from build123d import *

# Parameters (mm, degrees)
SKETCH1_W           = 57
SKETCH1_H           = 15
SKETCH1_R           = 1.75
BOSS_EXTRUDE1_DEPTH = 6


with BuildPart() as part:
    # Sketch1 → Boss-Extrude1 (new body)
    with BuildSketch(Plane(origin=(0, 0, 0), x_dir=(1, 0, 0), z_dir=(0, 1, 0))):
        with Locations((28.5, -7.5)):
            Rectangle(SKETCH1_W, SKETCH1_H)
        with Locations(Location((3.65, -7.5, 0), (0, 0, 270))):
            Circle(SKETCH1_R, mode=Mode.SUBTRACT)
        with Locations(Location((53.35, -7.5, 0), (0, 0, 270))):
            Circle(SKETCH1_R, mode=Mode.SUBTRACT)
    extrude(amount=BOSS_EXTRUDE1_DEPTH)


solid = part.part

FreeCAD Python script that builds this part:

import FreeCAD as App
import Part
import Sketcher

V = App.Vector
Q = App.Units.Quantity


def add_polygon(sketch, points):
    """Adds a closed chain of lines whose ends are joined by coincident constraints."""
    first, n = sketch.GeometryCount, len(points)
    for a, b in zip(points, points[1:] + points[:1]):
        sketch.addGeometry(Part.LineSegment(App.Vector(*a, 0), App.Vector(*b, 0)), False)
    for i in range(n):
        sketch.addConstraint(Sketcher.Constraint("Coincident", first + i, 2, first + (i + 1) % n, 1))

doc = App.newDocument("Part")
body = doc.addObject("PartDesign::Body", "Body")

# Sketch on XZ plane
sketch1 = doc.addObject("Sketcher::SketchObject", "Sketch")
body.addObject(sketch1)
sketch1.AttachmentSupport = (doc.XZ_Plane, [""])
sketch1.MapMode = "FlatFace"
add_polygon(sketch1, [(0, 0), (0, 15), (57, 15), (57, 0)])  # lines 0-3
sketch1.addGeometry(Part.Circle(V(3.6, 7.5, 0), V(0, 0, 1), 1.8), False)  # 4
sketch1.addGeometry(Part.Circle(V(53.4, 7.5, 0), V(0, 0, 1), 1.8), False)  # 5
sketch1.addConstraint([
    Sketcher.Constraint("Vertical", 0),
    Sketcher.Constraint("Horizontal", 1),
    Sketcher.Constraint("Vertical", 2),
    Sketcher.Constraint("Horizontal", 3),
    Sketcher.Constraint("Coincident", 3, 2, -1, 1),
    Sketcher.Constraint("Equal", 4, 5),
    Sketcher.Constraint("Horizontal", 4, 3, 5, 3),
    Sketcher.Constraint("Diameter", 4, Q("3.5 mm")),
    Sketcher.Constraint("DistanceX", 1, 1, 1, 2, Q("57 mm")),
    Sketcher.Constraint("DistanceY", 0, 1, 0, 2, Q("15 mm")),
    Sketcher.Constraint("DistanceY", -1, 1, 4, 3, Q("7.5 mm")),
    Sketcher.Constraint("DistanceX", 4, 3, 5, 3, Q("49.7 mm")),
    Sketcher.Constraint("DistanceX", -1, 1, 4, 3, Q("3.65 mm")),
])
pad1 = doc.addObject("PartDesign::Pad", "Pad")
body.addObject(pad1)
pad1.Profile = sketch1
pad1.Length = 6
pad1.Reversed = True

doc.recompute()
